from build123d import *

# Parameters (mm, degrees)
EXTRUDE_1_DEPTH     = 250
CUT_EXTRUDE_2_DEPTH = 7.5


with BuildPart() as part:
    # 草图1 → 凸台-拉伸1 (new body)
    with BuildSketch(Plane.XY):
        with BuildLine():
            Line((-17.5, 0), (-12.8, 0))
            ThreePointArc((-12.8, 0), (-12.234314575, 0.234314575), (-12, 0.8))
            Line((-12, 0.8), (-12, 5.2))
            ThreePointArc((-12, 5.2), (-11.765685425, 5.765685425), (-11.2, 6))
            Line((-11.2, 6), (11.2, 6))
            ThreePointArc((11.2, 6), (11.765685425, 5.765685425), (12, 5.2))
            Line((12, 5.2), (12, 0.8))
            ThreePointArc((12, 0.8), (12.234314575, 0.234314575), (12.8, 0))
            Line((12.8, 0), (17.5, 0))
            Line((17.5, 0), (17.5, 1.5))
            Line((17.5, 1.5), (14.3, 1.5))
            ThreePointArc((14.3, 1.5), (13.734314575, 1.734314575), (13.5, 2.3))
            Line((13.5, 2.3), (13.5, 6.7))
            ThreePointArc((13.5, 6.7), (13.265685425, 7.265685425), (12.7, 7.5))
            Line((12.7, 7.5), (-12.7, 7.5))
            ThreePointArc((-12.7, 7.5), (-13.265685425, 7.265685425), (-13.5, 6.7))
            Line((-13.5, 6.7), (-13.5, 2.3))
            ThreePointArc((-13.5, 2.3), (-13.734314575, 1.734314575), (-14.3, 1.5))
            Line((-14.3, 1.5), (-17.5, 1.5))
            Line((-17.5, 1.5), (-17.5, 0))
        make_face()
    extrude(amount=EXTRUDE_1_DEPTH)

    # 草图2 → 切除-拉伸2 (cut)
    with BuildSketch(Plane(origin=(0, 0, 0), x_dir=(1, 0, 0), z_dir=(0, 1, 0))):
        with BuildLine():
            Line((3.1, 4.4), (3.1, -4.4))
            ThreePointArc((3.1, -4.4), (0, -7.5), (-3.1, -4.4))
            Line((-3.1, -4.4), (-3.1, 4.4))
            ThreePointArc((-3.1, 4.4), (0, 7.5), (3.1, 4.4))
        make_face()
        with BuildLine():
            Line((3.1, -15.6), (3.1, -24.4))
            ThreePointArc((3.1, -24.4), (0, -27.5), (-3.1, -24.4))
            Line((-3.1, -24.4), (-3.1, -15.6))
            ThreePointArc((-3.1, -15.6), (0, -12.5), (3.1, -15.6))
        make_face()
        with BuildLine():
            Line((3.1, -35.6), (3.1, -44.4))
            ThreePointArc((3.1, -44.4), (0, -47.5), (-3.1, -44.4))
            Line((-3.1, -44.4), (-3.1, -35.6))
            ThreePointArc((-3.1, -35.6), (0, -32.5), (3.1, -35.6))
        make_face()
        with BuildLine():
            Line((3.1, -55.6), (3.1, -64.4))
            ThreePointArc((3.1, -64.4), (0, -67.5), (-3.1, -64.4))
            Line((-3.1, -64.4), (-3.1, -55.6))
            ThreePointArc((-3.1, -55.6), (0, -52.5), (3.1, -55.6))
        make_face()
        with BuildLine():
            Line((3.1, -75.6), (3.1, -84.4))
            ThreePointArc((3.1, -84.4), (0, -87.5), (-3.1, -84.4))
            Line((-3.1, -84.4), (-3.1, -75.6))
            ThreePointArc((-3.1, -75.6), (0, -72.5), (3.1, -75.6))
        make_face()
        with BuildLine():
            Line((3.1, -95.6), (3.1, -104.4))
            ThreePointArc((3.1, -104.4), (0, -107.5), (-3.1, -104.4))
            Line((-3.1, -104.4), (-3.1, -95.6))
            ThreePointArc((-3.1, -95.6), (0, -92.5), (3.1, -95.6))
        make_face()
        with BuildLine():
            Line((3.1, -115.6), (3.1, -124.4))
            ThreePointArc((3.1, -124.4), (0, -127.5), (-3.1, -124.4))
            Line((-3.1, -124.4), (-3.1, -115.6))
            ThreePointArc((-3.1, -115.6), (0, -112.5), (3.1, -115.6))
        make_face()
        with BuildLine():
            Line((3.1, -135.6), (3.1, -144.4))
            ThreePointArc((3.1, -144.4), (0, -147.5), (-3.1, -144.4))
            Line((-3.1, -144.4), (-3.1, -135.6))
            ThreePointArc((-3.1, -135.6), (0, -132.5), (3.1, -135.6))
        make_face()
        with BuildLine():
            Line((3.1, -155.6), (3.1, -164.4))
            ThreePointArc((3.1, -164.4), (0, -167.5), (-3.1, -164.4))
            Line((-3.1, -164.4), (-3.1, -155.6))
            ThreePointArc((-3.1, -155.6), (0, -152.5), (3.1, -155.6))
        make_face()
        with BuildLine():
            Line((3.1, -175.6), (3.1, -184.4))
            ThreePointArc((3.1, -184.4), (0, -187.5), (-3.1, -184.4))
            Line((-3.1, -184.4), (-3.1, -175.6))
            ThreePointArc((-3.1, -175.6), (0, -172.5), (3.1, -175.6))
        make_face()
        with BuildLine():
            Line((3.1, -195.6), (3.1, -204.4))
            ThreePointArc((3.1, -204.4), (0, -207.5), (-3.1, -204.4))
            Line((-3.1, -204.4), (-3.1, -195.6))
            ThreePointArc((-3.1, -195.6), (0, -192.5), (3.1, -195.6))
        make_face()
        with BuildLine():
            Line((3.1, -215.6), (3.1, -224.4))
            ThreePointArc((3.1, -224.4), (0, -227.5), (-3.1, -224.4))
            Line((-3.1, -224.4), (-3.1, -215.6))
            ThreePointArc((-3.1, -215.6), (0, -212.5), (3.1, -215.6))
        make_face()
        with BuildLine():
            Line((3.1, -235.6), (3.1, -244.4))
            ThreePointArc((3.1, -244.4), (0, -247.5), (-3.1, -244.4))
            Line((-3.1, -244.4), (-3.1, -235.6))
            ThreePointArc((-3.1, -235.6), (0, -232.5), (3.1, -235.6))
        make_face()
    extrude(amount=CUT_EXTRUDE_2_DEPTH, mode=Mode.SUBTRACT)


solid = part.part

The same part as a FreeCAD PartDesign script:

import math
import FreeCAD as App
import Part
import Sketcher
from FreeCAD import Vector
Q = App.Units.Quantity

doc = App.newDocument("Part")
body = doc.addObject("PartDesign::Body", "Body")

sketch1 = body.newObject("Sketcher::SketchObject", "Sketch")
sketch1.AttachmentSupport = (doc.getObject("XY_Plane"), [""])
sketch1.MapMode = "FlatFace"
sketch1.addGeometry(Part.LineSegment(Vector(-17.5, 0, 0), Vector(-12.8, 0, 0)), False)
sketch1.addGeometry(Part.ArcOfCircle(Part.Circle(Vector(-12.8, 0.8, 0), Vector(0, 0, 1), 0.8), math.radians(-90), math.radians(0)), False)
sketch1.addGeometry(Part.LineSegment(Vector(-12, 0.8, 0), Vector(-12, 5.2, 0)), False)
sketch1.addGeometry(Part.ArcOfCircle(Part.Circle(Vector(-11.2, 5.2, 0), Vector(0, 0, 1), 0.8), math.radians(90), math.radians(180)), False)
sketch1.addGeometry(Part.LineSegment(Vector(-11.2, 6, 0), Vector(11.2, 6, 0)), False)
sketch1.addGeometry(Part.ArcOfCircle(Part.Circle(Vector(11.2, 5.2, 0), Vector(0, 0, 1), 0.8), math.radians(0), math.radians(90)), False)
sketch1.addGeometry(Part.LineSegment(Vector(12, 5.2, 0), Vector(12, 0.8, 0)), False)
sketch1.addGeometry(Part.ArcOfCircle(Part.Circle(Vector(12.8, 0.8, 0), Vector(0, 0, 1), 0.8), math.radians(180), math.radians(270)), False)
sketch1.addGeometry(Part.LineSegment(Vector(12.8, 0, 0), Vector(17.5, 0, 0)), False)
sketch1.addGeometry(Part.LineSegment(Vector(17.5, 0, 0), Vector(17.5, 1.5, 0)), False)
sketch1.addGeometry(Part.LineSegment(Vector(17.5, 1.5, 0), Vector(14.3, 1.5, 0)), False)
sketch1.addGeometry(Part.ArcOfCircle(Part.Circle(Vector(14.3, 2.3, 0), Vector(0, 0, 1), 0.8), math.radians(180), math.radians(270)), False)
sketch1.addGeometry(Part.LineSegment(Vector(13.5, 2.3, 0), Vector(13.5, 6.7, 0)), False)
sketch1.addGeometry(Part.ArcOfCircle(Part.Circle(Vector(12.7, 6.7, 0), Vector(0, 0, 1), 0.8), math.radians(0), math.radians(90)), False)
sketch1.addGeometry(Part.LineSegment(Vector(12.7, 7.5, 0), Vector(-12.7, 7.5, 0)), False)
sketch1.addGeometry(Part.ArcOfCircle(Part.Circle(Vector(-12.7, 6.7, 0), Vector(0, 0, 1), 0.8), math.radians(90), math.radians(180)), False)
sketch1.addGeometry(Part.LineSegment(Vector(-13.5, 6.7, 0), Vector(-13.5, 2.3, 0)), False)
sketch1.addGeometry(Part.ArcOfCircle(Part.Circle(Vector(-14.3, 2.3, 0), Vector(0, 0, 1), 0.8), math.radians(-90), math.radians(0)), False)
sketch1.addGeometry(Part.LineSegment(Vector(-14.3, 1.5, 0), Vector(-17.5, 1.5, 0)), False)
sketch1.addGeometry(Part.LineSegment(Vector(-17.5, 1.5, 0), Vector(-17.5, 0, 0)), False)
sketch1.addConstraint(Sketcher.Constraint("Tangent", 0, 2, 1, 1))
sketch1.addConstraint(Sketcher.Constraint("Tangent", 1, 2, 2, 1))
sketch1.addConstraint(Sketcher.Constraint("Tangent", 2, 2, 3, 2))
sketch1.addConstraint(Sketcher.Constraint("Tangent", 3, 1, 4, 1))
sketch1.addConstraint(Sketcher.Constraint("Tangent", 4, 2, 5, 2))
sketch1.addConstraint(Sketcher.Constraint("Tangent", 5, 1, 6, 1))
sketch1.addConstraint(Sketcher.Constraint("Tangent", 6, 2, 7, 1))
sketch1.addConstraint(Sketcher.Constraint("Tangent", 7, 2, 8, 1))
sketch1.addConstraint(Sketcher.Constraint("Coincident", 8, 2, 9, 1))
sketch1.addConstraint(Sketcher.Constraint("Coincident", 9, 2, 10, 1))
sketch1.addConstraint(Sketcher.Constraint("Tangent", 10, 2, 11, 2))
sketch1.addConstraint(Sketcher.Constraint("Tangent", 11, 1, 12, 1))
sketch1.addConstraint(Sketcher.Constraint("Tangent", 12, 2, 13, 1))
sketch1.addConstraint(Sketcher.Constraint("Tangent", 13, 2, 14, 1))
sketch1.addConstraint(Sketcher.Constraint("Tangent", 14, 2, 15, 1))
sketch1.addConstraint(Sketcher.Constraint("Tangent", 15, 2, 16, 1))
sketch1.addConstraint(Sketcher.Constraint("Tangent", 16, 2, 17, 2))
sketch1.addConstraint(Sketcher.Constraint("Tangent", 17, 1, 18, 1))
sketch1.addConstraint(Sketcher.Constraint("Coincident", 18, 2, 19, 1))
sketch1.addConstraint(Sketcher.Constraint("Coincident", 19, 2, 0, 1))
sketch1.addConstraint(Sketcher.Constraint("Horizontal", 0))
sketch1.addConstraint(Sketcher.Constraint("Vertical", 2))
sketch1.addConstraint(Sketcher.Constraint("Horizontal", 4))
sketch1.addConstraint(Sketcher.Constraint("Vertical", 6))
sketch1.addConstraint(Sketcher.Constraint("Horizontal", 8))
sketch1.addConstraint(Sketcher.Constraint("Vertical", 9))
sketch1.addConstraint(Sketcher.Constraint("Horizontal", 10))
sketch1.addConstraint(Sketcher.Constraint("Vertical", 12))
sketch1.addConstraint(Sketcher.Constraint("Horizontal", 14))
sketch1.addConstraint(Sketcher.Constraint("Vertical", 16))
sketch1.addConstraint(Sketcher.Constraint("Horizontal", 18))
sketch1.addConstraint(Sketcher.Constraint("Vertical", 19))
sketch1.addConstraint(Sketcher.Constraint("Equal", 1, 3))
sketch1.addConstraint(Sketcher.Constraint("Equal", 3, 5))
sketch1.addConstraint(Sketcher.Constraint("Equal", 5, 7))
sketch1.addConstraint(Sketcher.Constraint("Equal", 7, 11))
sketch1.addConstraint(Sketcher.Constraint("Equal", 11, 13))
sketch1.addConstraint(Sketcher.Constraint("Equal", 13, 15))
sketch1.addConstraint(Sketcher.Constraint("Equal", 15, 17))
sketch1.addConstraint(Sketcher.Constraint("Symmetric", 0, 2, 7, 2, -1, 1))
sketch1.addConstraint(Sketcher.Constraint("Symmetric", 11, 3, 17, 3, -2))
sketch1.addConstraint(Sketcher.Constraint("Symmetric", 8, 2, 19, 2, -2))
sketch1.addConstraint(Sketcher.Constraint("Equal", 6, 12))
sketch1.addConstraint(Sketcher.Constraint("Radius", 1, Q("0.8 mm")))
sketch1.addConstraint(Sketcher.Constraint("DistanceX", 0, 1, 0, 2, Q("4.7 mm")))
sketch1.addConstraint(Sketcher.Constraint("DistanceX", 4, 1, 4, 2, Q("22.4 mm")))
sketch1.addConstraint(Sketcher.Constraint("DistanceX", 10, 2, 10, 1, Q("3.2 mm")))
sketch1.addConstraint(Sketcher.Constraint("DistanceY", 2, 1, 2, 2, Q("4.4 mm")))
sketch1.addConstraint(Sketcher.Constraint("DistanceY", 9, 1, 9, 2, Q("1.5 mm")))
pad1 = body.newObject("PartDesign::Pad", "Pad")
pad1.Profile = sketch1
pad1.Length = 250

sketch2 = body.newObject("Sketcher::SketchObject", "Sketch001")
sketch2.AttachmentSupport = (doc.getObject("XZ_Plane"), [""])
sketch2.MapMode = "FlatFace"
sketch2.addGeometry(Part.LineSegment(Vector(3.1, 4.4, 0), Vector(3.1, -4.4, 0)), False)
sketch2.addGeometry(Part.ArcOfCircle(Part.Circle(Vector(0, -4.4, 0), Vector(0, 0, 1), 3.1), math.radians(180), math.radians(360)), False)
sketch2.addGeometry(Part.LineSegment(Vector(-3.1, -4.4, 0), Vector(-3.1, 4.4, 0)), False)
sketch2.addGeometry(Part.ArcOfCircle(Part.Circle(Vector(0, 4.4, 0), Vector(0, 0, 1), 3.1), math.radians(0), math.radians(180)), False)
sketch2.addGeometry(Part.LineSegment(Vector(3.1, 24.4, 0), Vector(3.1, 15.6, 0)), False)
sketch2.addGeometry(Part.ArcOfCircle(Part.Circle(Vector(0, 15.6, 0), Vector(0, 0, 1), 3.1), math.radians(180), math.radians(360)), False)
sketch2.addGeometry(Part.LineSegment(Vector(-3.1, 15.6, 0), Vector(-3.1, 24.4, 0)), False)
sketch2.addGeometry(Part.ArcOfCircle(Part.Circle(Vector(0, 24.4, 0), Vector(0, 0, 1), 3.1), math.radians(0), math.radians(180)), False)
sketch2.addGeometry(Part.LineSegment(Vector(3.1, 44.4, 0), Vector(3.1, 35.6, 0)), False)
sketch2.addGeometry(Part.ArcOfCircle(Part.Circle(Vector(0, 35.6, 0), Vector(0, 0, 1), 3.1), math.radians(180), math.radians(360)), False)
sketch2.addGeometry(Part.LineSegment(Vector(-3.1, 35.6, 0), Vector(-3.1, 44.4, 0)), False)
sketch2.addGeometry(Part.ArcOfCircle(Part.Circle(Vector(0, 44.4, 0), Vector(0, 0, 1), 3.1), math.radians(0), math.radians(180)), False)
sketch2.addGeometry(Part.LineSegment(Vector(3.1, 64.4, 0), Vector(3.1, 55.6, 0)), False)
sketch2.addGeometry(Part.ArcOfCircle(Part.Circle(Vector(0, 55.6, 0), Vector(0, 0, 1), 3.1), math.radians(180), math.radians(360)), False)
sketch2.addGeometry(Part.LineSegment(Vector(-3.1, 55.6, 0), Vector(-3.1, 64.4, 0)), False)
sketch2.addGeometry(Part.ArcOfCircle(Part.Circle(Vector(0, 64.4, 0), Vector(0, 0, 1), 3.1), math.radians(0), math.radians(180)), False)
sketch2.addGeometry(Part.LineSegment(Vector(3.1, 84.4, 0), Vector(3.1, 75.6, 0)), False)
sketch2.addGeometry(Part.ArcOfCircle(Part.Circle(Vector(0, 75.6, 0), Vector(0, 0, 1), 3.1), math.radians(180), math.radians(360)), False)
sketch2.addGeometry(Part.LineSegment(Vector(-3.1, 75.6, 0), Vector(-3.1, 84.4, 0)), False)
sketch2.addGeometry(Part.ArcOfCircle(Part.Circle(Vector(0, 84.4, 0), Vector(0, 0, 1), 3.1), math.radians(0), math.radians(180)), False)
sketch2.addGeometry(Part.LineSegment(Vector(3.1, 104.4, 0), Vector(3.1, 95.6, 0)), False)
sketch2.addGeometry(Part.ArcOfCircle(Part.Circle(Vector(0, 95.6, 0), Vector(0, 0, 1), 3.1), math.radians(180), math.radians(360)), False)
sketch2.addGeometry(Part.LineSegment(Vector(-3.1, 95.6, 0), Vector(-3.1, 104.4, 0)), False)
sketch2.addGeometry(Part.ArcOfCircle(Part.Circle(Vector(0, 104.4, 0), Vector(0, 0, 1), 3.1), math.radians(0), math.radians(180)), False)
sketch2.addGeometry(Part.LineSegment(Vector(3.1, 124.4, 0), Vector(3.1, 115.6, 0)), False)
sketch2.addGeometry(Part.ArcOfCircle(Part.Circle(Vector(0, 115.6, 0), Vector(0, 0, 1), 3.1), math.radians(180), math.radians(360)), False)
sketch2.addGeometry(Part.LineSegment(Vector(-3.1, 115.6, 0), Vector(-3.1, 124.4, 0)), False)
sketch2.addGeometry(Part.ArcOfCircle(Part.Circle(Vector(0, 124.4, 0), Vector(0, 0, 1), 3.1), math.radians(0), math.radians(180)), False)
sketch2.addGeometry(Part.LineSegment(Vector(3.1, 144.4, 0), Vector(3.1, 135.6, 0)), False)
sketch2.addGeometry(Part.ArcOfCircle(Part.Circle(Vector(0, 135.6, 0), Vector(0, 0, 1), 3.1), math.radians(180), math.radians(360)), False)
sketch2.addGeometry(Part.LineSegment(Vector(-3.1, 135.6, 0), Vector(-3.1, 144.4, 0)), False)
sketch2.addGeometry(Part.ArcOfCircle(Part.Circle(Vector(0, 144.4, 0), Vector(0, 0, 1), 3.1), math.radians(0), math.radians(180)), False)
sketch2.addGeometry(Part.LineSegment(Vector(3.1, 164.4, 0), Vector(3.1, 155.6, 0)), False)
sketch2.addGeometry(Part.ArcOfCircle(Part.Circle(Vector(0, 155.6, 0), Vector(0, 0, 1), 3.1), math.radians(180), math.radians(360)), False)
sketch2.addGeometry(Part.LineSegment(Vector(-3.1, 155.6, 0), Vector(-3.1, 164.4, 0)), False)
sketch2.addGeometry(Part.ArcOfCircle(Part.Circle(Vector(0, 164.4, 0), Vector(0, 0, 1), 3.1), math.radians(0), math.radians(180)), False)
sketch2.addGeometry(Part.LineSegment(Vector(3.1, 184.4, 0), Vector(3.1, 175.6, 0)), False)
sketch2.addGeometry(Part.ArcOfCircle(Part.Circle(Vector(0, 175.6, 0), Vector(0, 0, 1), 3.1), math.radians(180), math.radians(360)), False)
sketch2.addGeometry(Part.LineSegment(Vector(-3.1, 175.6, 0), Vector(-3.1, 184.4, 0)), False)
sketch2.addGeometry(Part.ArcOfCircle(Part.Circle(Vector(0, 184.4, 0), Vector(0, 0, 1), 3.1), math.radians(0), math.radians(180)), False)
sketch2.addGeometry(Part.LineSegment(Vector(3.1, 204.4, 0), Vector(3.1, 195.6, 0)), False)
sketch2.addGeometry(Part.ArcOfCircle(Part.Circle(Vector(0, 195.6, 0), Vector(0, 0, 1), 3.1), math.radians(180), math.radians(360)), False)
sketch2.addGeometry(Part.LineSegment(Vector(-3.1, 195.6, 0), Vector(-3.1, 204.4, 0)), False)
sketch2.addGeometry(Part.ArcOfCircle(Part.Circle(Vector(0, 204.4, 0), Vector(0, 0, 1), 3.1), math.radians(0), math.radians(180)), False)
sketch2.addGeometry(Part.LineSegment(Vector(3.1, 224.4, 0), Vector(3.1, 215.6, 0)), False)
sketch2.addGeometry(Part.ArcOfCircle(Part.Circle(Vector(0, 215.6, 0), Vector(0, 0, 1), 3.1), math.radians(180), math.radians(360)), False)
sketch2.addGeometry(Part.LineSegment(Vector(-3.1, 215.6, 0), Vector(-3.1, 224.4, 0)), False)
sketch2.addGeometry(Part.ArcOfCircle(Part.Circle(Vector(0, 224.4, 0), Vector(0, 0, 1), 3.1), math.radians(0), math.radians(180)), False)
sketch2.addGeometry(Part.LineSegment(Vector(3.1, 244.4, 0), Vector(3.1, 235.6, 0)), False)
sketch2.addGeometry(Part.ArcOfCircle(Part.Circle(Vector(0, 235.6, 0), Vector(0, 0, 1), 3.1), math.radians(180), math.radians(360)), False)
sketch2.addGeometry(Part.LineSegment(Vector(-3.1, 235.6, 0), Vector(-3.1, 244.4, 0)), False)
sketch2.addGeometry(Part.ArcOfCircle(Part.Circle(Vector(0, 244.4, 0), Vector(0, 0, 1), 3.1), math.radians(0), math.radians(180)), False)
sketch2.addConstraint(Sketcher.Constraint("Tangent", 0, 2, 1, 2))
sketch2.addConstraint(Sketcher.Constraint("Tangent", 1, 1, 2, 1))
sketch2.addConstraint(Sketcher.Constraint("Tangent", 2, 2, 3, 2))
sketch2.addConstraint(Sketcher.Constraint("Tangent", 3, 1, 0, 1))
sketch2.addConstraint(Sketcher.Constraint("Tangent", 4, 2, 5, 2))
sketch2.addConstraint(Sketcher.Constraint("Tangent", 5, 1, 6, 1))
sketch2.addConstraint(Sketcher.Constraint("Tangent", 6, 2, 7, 2))
sketch2.addConstraint(Sketcher.Constraint("Tangent", 7, 1, 4, 1))
sketch2.addConstraint(Sketcher.Constraint("Tangent", 8, 2, 9, 2))
sketch2.addConstraint(Sketcher.Constraint("Tangent", 9, 1, 10, 1))
sketch2.addConstraint(Sketcher.Constraint("Tangent", 10, 2, 11, 2))
sketch2.addConstraint(Sketcher.Constraint("Tangent", 11, 1, 8, 1))
sketch2.addConstraint(Sketcher.Constraint("Tangent", 12, 2, 13, 2))
sketch2.addConstraint(Sketcher.Constraint("Tangent", 13, 1, 14, 1))
sketch2.addConstraint(Sketcher.Constraint("Tangent", 14, 2, 15, 2))
sketch2.addConstraint(Sketcher.Constraint("Tangent", 15, 1, 12, 1))
sketch2.addConstraint(Sketcher.Constraint("Tangent", 16, 2, 17, 2))
sketch2.addConstraint(Sketcher.Constraint("Tangent", 17, 1, 18, 1))
sketch2.addConstraint(Sketcher.Constraint("Tangent", 18, 2, 19, 2))
sketch2.addConstraint(Sketcher.Constraint("Tangent", 19, 1, 16, 1))
sketch2.addConstraint(Sketcher.Constraint("Tangent", 20, 2, 21, 2))
sketch2.addConstraint(Sketcher.Constraint("Tangent", 21, 1, 22, 1))
sketch2.addConstraint(Sketcher.Constraint("Tangent", 22, 2, 23, 2))
sketch2.addConstraint(Sketcher.Constraint("Tangent", 23, 1, 20, 1))
sketch2.addConstraint(Sketcher.Constraint("Tangent", 24, 2, 25, 2))
sketch2.addConstraint(Sketcher.Constraint("Tangent", 25, 1, 26, 1))
sketch2.addConstraint(Sketcher.Constraint("Tangent", 26, 2, 27, 2))
sketch2.addConstraint(Sketcher.Constraint("Tangent", 27, 1, 24, 1))
sketch2.addConstraint(Sketcher.Constraint("Tangent", 28, 2, 29, 2))
sketch2.addConstraint(Sketcher.Constraint("Tangent", 29, 1, 30, 1))
sketch2.addConstraint(Sketcher.Constraint("Tangent", 30, 2, 31, 2))
sketch2.addConstraint(Sketcher.Constraint("Tangent", 31, 1, 28, 1))
sketch2.addConstraint(Sketcher.Constraint("Tangent", 32, 2, 33, 2))
sketch2.addConstraint(Sketcher.Constraint("Tangent", 33, 1, 34, 1))
sketch2.addConstraint(Sketcher.Constraint("Tangent", 34, 2, 35, 2))
sketch2.addConstraint(Sketcher.Constraint("Tangent", 35, 1, 32, 1))
sketch2.addConstraint(Sketcher.Constraint("Tangent", 36, 2, 37, 2))
sketch2.addConstraint(Sketcher.Constraint("Tangent", 37, 1, 38, 1))
sketch2.addConstraint(Sketcher.Constraint("Tangent", 38, 2, 39, 2))
sketch2.addConstraint(Sketcher.Constraint("Tangent", 39, 1, 36, 1))
sketch2.addConstraint(Sketcher.Constraint("Tangent", 40, 2, 41, 2))
sketch2.addConstraint(Sketcher.Constraint("Tangent", 41, 1, 42, 1))
sketch2.addConstraint(Sketcher.Constraint("Tangent", 42, 2, 43, 2))
sketch2.addConstraint(Sketcher.Constraint("Tangent", 43, 1, 40, 1))
sketch2.addConstraint(Sketcher.Constraint("Tangent", 44, 2, 45, 2))
sketch2.addConstraint(Sketcher.Constraint("Tangent", 45, 1, 46, 1))
sketch2.addConstraint(Sketcher.Constraint("Tangent", 46, 2, 47, 2))
sketch2.addConstraint(Sketcher.Constraint("Tangent", 47, 1, 44, 1))
sketch2.addConstraint(Sketcher.Constraint("Tangent", 48, 2, 49, 2))
sketch2.addConstraint(Sketcher.Constraint("Tangent", 49, 1, 50, 1))
sketch2.addConstraint(Sketcher.Constraint("Tangent", 50, 2, 51, 2))
sketch2.addConstraint(Sketcher.Constraint("Tangent", 51, 1, 48, 1))
sketch2.addConstraint(Sketcher.Constraint("Vertical", 0))
sketch2.addConstraint(Sketcher.Constraint("Vertical", 2))
sketch2.addConstraint(Sketcher.Constraint("Vertical", 4))
sketch2.addConstraint(Sketcher.Constraint("Vertical", 6))
sketch2.addConstraint(Sketcher.Constraint("Vertical", 8))
sketch2.addConstraint(Sketcher.Constraint("Vertical", 10))
sketch2.addConstraint(Sketcher.Constraint("Vertical", 12))
sketch2.addConstraint(Sketcher.Constraint("Vertical", 14))
sketch2.addConstraint(Sketcher.Constraint("Vertical", 16))
sketch2.addConstraint(Sketcher.Constraint("Vertical", 18))
sketch2.addConstraint(Sketcher.Constraint("Vertical", 20))
sketch2.addConstraint(Sketcher.Constraint("Vertical", 22))
sketch2.addConstraint(Sketcher.Constraint("Vertical", 24))
sketch2.addConstraint(Sketcher.Constraint("Vertical", 26))
sketch2.addConstraint(Sketcher.Constraint("Vertical", 28))
sketch2.addConstraint(Sketcher.Constraint("Vertical", 30))
sketch2.addConstraint(Sketcher.Constraint("Vertical", 32))
sketch2.addConstraint(Sketcher.Constraint("Vertical", 34))
sketch2.addConstraint(Sketcher.Constraint("Vertical", 36))
sketch2.addConstraint(Sketcher.Constraint("Vertical", 38))
sketch2.addConstraint(Sketcher.Constraint("Vertical", 40))
sketch2.addConstraint(Sketcher.Constraint("Vertical", 42))
sketch2.addConstraint(Sketcher.Constraint("Vertical", 44))
sketch2.addConstraint(Sketcher.Constraint("Vertical", 46))
sketch2.addConstraint(Sketcher.Constraint("Vertical", 48))
sketch2.addConstraint(Sketcher.Constraint("Vertical", 50))
sketch2.addConstraint(Sketcher.Constraint("Equal", 3, 5))
sketch2.addConstraint(Sketcher.Constraint("Equal", 7, 9))
sketch2.addConstraint(Sketcher.Constraint("Equal", 11, 13))
sketch2.addConstraint(Sketcher.Constraint("Equal", 15, 17))
sketch2.addConstraint(Sketcher.Constraint("Equal", 19, 21))
sketch2.addConstraint(Sketcher.Constraint("Equal", 23, 25))
sketch2.addConstraint(Sketcher.Constraint("Equal", 27, 29))
sketch2.addConstraint(Sketcher.Constraint("Equal", 31, 33))
sketch2.addConstraint(Sketcher.Constraint("Equal", 35, 37))
sketch2.addConstraint(Sketcher.Constraint("Equal", 39, 41))
sketch2.addConstraint(Sketcher.Constraint("Equal", 43, 45))
sketch2.addConstraint(Sketcher.Constraint("Equal", 47, 49))
sketch2.addConstraint(Sketcher.Constraint("Symmetric", 1, 3, 3, 3, -1, 1))
sketch2.addConstraint(Sketcher.Constraint("PointOnObject", 5, 3, -2))
sketch2.addConstraint(Sketcher.Constraint("PointOnObject", 9, 3, -2))
sketch2.addConstraint(Sketcher.Constraint("PointOnObject", 13, 3, -2))
sketch2.addConstraint(Sketcher.Constraint("PointOnObject", 17, 3, -2))
sketch2.addConstraint(Sketcher.Constraint("PointOnObject", 21, 3, -2))
sketch2.addConstraint(Sketcher.Constraint("PointOnObject", 25, 3, -2))
sketch2.addConstraint(Sketcher.Constraint("PointOnObject", 29, 3, -2))
sketch2.addConstraint(Sketcher.Constraint("PointOnObject", 33, 3, -2))
sketch2.addConstraint(Sketcher.Constraint("PointOnObject", 37, 3, -2))
sketch2.addConstraint(Sketcher.Constraint("PointOnObject", 41, 3, -2))
sketch2.addConstraint(Sketcher.Constraint("PointOnObject", 45, 3, -2))
sketch2.addConstraint(Sketcher.Constraint("PointOnObject", 49, 3, -2))
sketch2.addConstraint(Sketcher.Constraint("Equal", 2, 4))
sketch2.addConstraint(Sketcher.Constraint("Equal", 6, 8))
sketch2.addConstraint(Sketcher.Constraint("Equal", 10, 12))
sketch2.addConstraint(Sketcher.Constraint("Equal", 14, 16))
sketch2.addConstraint(Sketcher.Constraint("Equal", 18, 20))
sketch2.addConstraint(Sketcher.Constraint("Equal", 22, 24))
sketch2.addConstraint(Sketcher.Constraint("Equal", 26, 28))
sketch2.addConstraint(Sketcher.Constraint("Equal", 30, 32))
sketch2.addConstraint(Sketcher.Constraint("Equal", 34, 36))
sketch2.addConstraint(Sketcher.Constraint("Equal", 38, 40))
sketch2.addConstraint(Sketcher.Constraint("Equal", 42, 44))
sketch2.addConstraint(Sketcher.Constraint("Equal", 46, 48))
sketch2.addConstraint(Sketcher.Constraint("Radius", 1, Q("3.1 mm")))
sketch2.addConstraint(Sketcher.Constraint("DistanceY", 0, 2, 0, 1, Q("8.8 mm")))
sketch2.addConstraint(Sketcher.Constraint("DistanceY", -1, 1, 5, 3, Q("15.6 mm")))
sketch2.addConstraint(Sketcher.Constraint("DistanceY", -1, 1, 9, 3, Q("35.6 mm")))
sketch2.addConstraint(Sketcher.Constraint("DistanceY", -1, 1, 13, 3, Q("55.6 mm")))
sketch2.addConstraint(Sketcher.Constraint("DistanceY", -1, 1, 17, 3, Q("75.6 mm")))
sketch2.addConstraint(Sketcher.Constraint("DistanceY", -1, 1, 21, 3, Q("95.6 mm")))
sketch2.addConstraint(Sketcher.Constraint("DistanceY", -1, 1, 25, 3, Q("115.6 mm")))
sketch2.addConstraint(Sketcher.Constraint("DistanceY", -1, 1, 29, 3, Q("135.6 mm")))
sketch2.addConstraint(Sketcher.Constraint("DistanceY", -1, 1, 33, 3, Q("155.6 mm")))
sketch2.addConstraint(Sketcher.Constraint("DistanceY", -1, 1, 37, 3, Q("175.6 mm")))
sketch2.addConstraint(Sketcher.Constraint("DistanceY", -1, 1, 41, 3, Q("195.6 mm")))
sketch2.addConstraint(Sketcher.Constraint("DistanceY", -1, 1, 45, 3, Q("215.6 mm")))
sketch2.addConstraint(Sketcher.Constraint("DistanceY", -1, 1, 49, 3, Q("235.6 mm")))
pocket1 = body.newObject("PartDesign::Pocket", "Pocket")
pocket1.Profile = sketch2
pocket1.Length = 7.5

doc.recompute()
